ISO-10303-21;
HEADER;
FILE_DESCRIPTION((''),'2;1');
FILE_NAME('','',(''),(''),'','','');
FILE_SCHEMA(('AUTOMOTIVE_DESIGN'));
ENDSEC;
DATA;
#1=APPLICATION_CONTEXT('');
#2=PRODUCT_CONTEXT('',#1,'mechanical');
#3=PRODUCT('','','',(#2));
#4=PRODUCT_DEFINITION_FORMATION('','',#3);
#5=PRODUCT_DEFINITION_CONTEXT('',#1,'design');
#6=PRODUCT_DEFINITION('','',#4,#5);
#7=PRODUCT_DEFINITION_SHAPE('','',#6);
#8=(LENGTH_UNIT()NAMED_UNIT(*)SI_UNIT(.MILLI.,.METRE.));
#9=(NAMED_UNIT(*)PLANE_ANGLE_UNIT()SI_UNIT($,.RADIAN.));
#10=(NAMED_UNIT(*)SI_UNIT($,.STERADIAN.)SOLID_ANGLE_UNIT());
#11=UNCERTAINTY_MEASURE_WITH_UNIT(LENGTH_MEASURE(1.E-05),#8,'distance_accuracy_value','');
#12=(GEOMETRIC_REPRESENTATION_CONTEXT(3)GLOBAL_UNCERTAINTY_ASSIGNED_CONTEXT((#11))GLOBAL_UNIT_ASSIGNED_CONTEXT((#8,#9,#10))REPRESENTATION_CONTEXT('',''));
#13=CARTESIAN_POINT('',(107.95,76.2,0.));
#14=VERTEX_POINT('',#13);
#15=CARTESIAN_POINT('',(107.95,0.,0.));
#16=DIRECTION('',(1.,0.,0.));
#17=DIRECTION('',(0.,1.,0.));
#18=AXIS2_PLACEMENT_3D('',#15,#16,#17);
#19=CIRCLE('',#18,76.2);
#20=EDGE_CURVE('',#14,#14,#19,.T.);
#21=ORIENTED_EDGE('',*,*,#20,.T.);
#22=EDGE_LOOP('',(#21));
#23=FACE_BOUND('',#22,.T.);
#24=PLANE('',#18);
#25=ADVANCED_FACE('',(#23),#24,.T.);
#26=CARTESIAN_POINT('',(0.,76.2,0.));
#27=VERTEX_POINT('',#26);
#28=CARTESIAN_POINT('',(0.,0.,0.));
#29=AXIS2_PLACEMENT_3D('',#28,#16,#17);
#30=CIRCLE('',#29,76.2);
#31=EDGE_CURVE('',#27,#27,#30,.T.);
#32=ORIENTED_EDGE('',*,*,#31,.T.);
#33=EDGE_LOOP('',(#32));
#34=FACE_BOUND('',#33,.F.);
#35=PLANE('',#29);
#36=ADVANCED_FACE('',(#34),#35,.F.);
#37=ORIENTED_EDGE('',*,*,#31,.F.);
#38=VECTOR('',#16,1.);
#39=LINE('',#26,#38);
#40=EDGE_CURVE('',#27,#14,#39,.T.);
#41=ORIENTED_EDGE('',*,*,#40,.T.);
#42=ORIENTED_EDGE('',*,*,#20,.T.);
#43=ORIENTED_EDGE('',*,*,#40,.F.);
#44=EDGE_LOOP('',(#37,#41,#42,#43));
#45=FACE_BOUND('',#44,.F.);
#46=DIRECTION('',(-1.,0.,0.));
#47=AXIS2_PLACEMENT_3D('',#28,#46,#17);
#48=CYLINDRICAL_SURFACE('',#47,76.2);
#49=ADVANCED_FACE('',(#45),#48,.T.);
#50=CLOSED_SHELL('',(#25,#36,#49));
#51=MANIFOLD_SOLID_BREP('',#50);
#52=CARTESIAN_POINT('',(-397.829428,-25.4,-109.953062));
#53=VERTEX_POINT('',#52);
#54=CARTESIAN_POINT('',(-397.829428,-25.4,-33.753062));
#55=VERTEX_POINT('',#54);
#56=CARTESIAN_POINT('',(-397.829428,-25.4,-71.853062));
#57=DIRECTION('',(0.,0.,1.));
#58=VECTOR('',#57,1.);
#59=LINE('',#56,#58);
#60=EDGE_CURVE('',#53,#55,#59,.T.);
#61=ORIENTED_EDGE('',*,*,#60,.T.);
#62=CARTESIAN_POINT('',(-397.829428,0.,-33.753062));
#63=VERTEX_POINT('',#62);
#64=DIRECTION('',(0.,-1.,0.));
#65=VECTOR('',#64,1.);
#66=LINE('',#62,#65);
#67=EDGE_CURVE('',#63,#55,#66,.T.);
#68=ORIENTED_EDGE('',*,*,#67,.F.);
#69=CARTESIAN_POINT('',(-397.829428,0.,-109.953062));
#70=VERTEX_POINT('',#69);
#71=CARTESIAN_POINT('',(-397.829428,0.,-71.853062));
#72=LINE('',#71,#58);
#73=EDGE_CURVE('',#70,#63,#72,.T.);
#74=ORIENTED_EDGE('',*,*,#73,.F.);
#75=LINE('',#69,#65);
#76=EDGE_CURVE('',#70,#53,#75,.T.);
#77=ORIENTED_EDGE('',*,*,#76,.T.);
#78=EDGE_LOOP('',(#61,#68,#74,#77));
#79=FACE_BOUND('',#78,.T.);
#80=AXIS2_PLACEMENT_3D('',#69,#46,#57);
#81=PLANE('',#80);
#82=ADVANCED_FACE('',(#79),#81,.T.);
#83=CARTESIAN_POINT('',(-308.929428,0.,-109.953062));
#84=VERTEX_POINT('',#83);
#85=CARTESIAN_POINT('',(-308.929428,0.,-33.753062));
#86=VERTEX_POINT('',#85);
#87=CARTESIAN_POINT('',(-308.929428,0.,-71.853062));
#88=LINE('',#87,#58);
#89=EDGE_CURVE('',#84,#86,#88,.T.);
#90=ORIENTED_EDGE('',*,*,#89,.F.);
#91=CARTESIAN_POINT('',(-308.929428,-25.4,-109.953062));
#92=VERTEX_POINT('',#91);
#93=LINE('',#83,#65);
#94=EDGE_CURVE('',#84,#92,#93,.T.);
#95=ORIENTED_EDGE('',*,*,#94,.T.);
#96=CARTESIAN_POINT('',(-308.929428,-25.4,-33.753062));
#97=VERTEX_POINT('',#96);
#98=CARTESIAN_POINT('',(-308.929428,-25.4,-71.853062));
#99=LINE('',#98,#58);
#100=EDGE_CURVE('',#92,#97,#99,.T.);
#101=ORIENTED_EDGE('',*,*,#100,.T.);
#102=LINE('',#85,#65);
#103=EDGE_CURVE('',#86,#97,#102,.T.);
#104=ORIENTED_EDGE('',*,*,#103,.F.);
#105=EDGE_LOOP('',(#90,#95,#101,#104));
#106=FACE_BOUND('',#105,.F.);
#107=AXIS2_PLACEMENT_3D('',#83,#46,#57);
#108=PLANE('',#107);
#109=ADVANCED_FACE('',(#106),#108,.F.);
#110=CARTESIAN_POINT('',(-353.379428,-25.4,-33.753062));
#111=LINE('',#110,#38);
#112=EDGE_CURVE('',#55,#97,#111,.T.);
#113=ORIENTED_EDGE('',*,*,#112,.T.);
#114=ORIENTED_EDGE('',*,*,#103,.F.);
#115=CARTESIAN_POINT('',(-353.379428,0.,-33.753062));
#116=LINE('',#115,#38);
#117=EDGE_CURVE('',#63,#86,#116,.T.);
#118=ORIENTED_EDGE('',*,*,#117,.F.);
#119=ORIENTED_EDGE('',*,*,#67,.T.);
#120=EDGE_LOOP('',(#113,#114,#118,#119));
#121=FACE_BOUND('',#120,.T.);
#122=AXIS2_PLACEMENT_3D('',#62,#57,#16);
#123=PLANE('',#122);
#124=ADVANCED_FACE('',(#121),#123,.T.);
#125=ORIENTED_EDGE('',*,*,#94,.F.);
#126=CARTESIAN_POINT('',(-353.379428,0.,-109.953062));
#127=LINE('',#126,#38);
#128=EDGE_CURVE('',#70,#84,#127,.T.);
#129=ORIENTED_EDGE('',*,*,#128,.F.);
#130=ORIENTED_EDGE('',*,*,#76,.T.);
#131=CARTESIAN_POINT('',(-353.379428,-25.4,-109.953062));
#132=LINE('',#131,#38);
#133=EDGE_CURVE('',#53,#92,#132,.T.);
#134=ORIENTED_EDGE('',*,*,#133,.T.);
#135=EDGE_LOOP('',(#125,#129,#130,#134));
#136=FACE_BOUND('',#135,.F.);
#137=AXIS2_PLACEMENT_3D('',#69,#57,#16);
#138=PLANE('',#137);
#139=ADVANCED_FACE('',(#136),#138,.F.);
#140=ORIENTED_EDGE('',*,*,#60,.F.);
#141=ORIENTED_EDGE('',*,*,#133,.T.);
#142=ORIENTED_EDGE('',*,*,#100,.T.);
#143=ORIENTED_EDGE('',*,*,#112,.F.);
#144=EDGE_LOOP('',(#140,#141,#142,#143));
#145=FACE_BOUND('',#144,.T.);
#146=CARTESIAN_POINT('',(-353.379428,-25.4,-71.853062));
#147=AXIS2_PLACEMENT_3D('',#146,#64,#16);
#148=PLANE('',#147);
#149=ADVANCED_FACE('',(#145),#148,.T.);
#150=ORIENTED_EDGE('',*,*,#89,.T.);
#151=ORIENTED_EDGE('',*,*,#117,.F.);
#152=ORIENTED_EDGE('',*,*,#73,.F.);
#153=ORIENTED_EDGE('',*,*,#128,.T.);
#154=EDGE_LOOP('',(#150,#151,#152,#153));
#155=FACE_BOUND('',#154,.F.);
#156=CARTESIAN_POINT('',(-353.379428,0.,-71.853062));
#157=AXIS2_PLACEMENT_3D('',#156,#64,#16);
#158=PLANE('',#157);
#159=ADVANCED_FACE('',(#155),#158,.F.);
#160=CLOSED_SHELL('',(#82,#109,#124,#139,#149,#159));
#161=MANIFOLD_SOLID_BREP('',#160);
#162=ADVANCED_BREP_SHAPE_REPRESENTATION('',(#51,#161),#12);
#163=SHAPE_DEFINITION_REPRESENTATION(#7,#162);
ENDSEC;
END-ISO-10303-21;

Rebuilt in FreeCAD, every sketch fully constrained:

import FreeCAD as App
import Part
import Sketcher
from FreeCAD import Vector
Q = App.Units.Quantity


def add_polygon(sketch, points):
    """Adds a closed chain of lines whose ends are joined by coincident constraints."""
    first, n = sketch.GeometryCount, len(points)
    for a, b in zip(points, points[1:] + points[:1]):
        sketch.addGeometry(Part.LineSegment(App.Vector(*a, 0), App.Vector(*b, 0)), False)
    for i in range(n):
        sketch.addConstraint(Sketcher.Constraint("Coincident", first + i, 2, first + (i + 1) % n, 1))

doc = App.newDocument("Part")
body = doc.addObject("PartDesign::Body", "Body")

# Sketch on YZ plane
sketch1 = body.newObject("Sketcher::SketchObject", "Sketch")
sketch1.AttachmentSupport = (doc.getObject("YZ_Plane"), [""])
sketch1.MapMode = "FlatFace"
sketch1.addGeometry(Part.Circle(Vector(0, 0, 0), Vector(0, 0, 1), 76), False)
sketch1.addConstraint([
    Sketcher.Constraint("Coincident", 0, 3, -1, 1),
    Sketcher.Constraint("Diameter", 0, Q("6 in")),
])
pad1 = body.newObject("PartDesign::Pad", "Pad")
pad1.Profile = sketch1
pad1.Length = Q("4.25 in")
body2 = doc.addObject("PartDesign::Body", "Body001")

# Sketch on XZ plane
sketch2 = body2.newObject("Sketcher::SketchObject", "Sketch001")
sketch2.AttachmentSupport = (doc.getObject("XZ_Plane001"), [""])
sketch2.MapMode = "FlatFace"
add_polygon(sketch2, [(-398, -34), (-398, -110), (-309, -110), (-309, -34)])  # lines 0-3
sketch2.addConstraint([
    Sketcher.Constraint("Vertical", 0),
    Sketcher.Constraint("Horizontal", 1),
    Sketcher.Constraint("Vertical", 2),
    Sketcher.Constraint("Horizontal", 3),
    Sketcher.Constraint("DistanceY", 0, 2, 0, 1, Q("3 in")),
    Sketcher.Constraint("DistanceX", 1, 1, 1, 2, Q("3.5 in")),
    Sketcher.Constraint("DistanceX", 0, 2, -1, 1, 397.829428),
    Sketcher.Constraint("DistanceY", 0, 2, -1, 1, 109.953062),
])
pad2 = body2.newObject("PartDesign::Pad", "Pad001")
pad2.Profile = sketch2
pad2.Length = Q("1 in")

doc.recompute()
